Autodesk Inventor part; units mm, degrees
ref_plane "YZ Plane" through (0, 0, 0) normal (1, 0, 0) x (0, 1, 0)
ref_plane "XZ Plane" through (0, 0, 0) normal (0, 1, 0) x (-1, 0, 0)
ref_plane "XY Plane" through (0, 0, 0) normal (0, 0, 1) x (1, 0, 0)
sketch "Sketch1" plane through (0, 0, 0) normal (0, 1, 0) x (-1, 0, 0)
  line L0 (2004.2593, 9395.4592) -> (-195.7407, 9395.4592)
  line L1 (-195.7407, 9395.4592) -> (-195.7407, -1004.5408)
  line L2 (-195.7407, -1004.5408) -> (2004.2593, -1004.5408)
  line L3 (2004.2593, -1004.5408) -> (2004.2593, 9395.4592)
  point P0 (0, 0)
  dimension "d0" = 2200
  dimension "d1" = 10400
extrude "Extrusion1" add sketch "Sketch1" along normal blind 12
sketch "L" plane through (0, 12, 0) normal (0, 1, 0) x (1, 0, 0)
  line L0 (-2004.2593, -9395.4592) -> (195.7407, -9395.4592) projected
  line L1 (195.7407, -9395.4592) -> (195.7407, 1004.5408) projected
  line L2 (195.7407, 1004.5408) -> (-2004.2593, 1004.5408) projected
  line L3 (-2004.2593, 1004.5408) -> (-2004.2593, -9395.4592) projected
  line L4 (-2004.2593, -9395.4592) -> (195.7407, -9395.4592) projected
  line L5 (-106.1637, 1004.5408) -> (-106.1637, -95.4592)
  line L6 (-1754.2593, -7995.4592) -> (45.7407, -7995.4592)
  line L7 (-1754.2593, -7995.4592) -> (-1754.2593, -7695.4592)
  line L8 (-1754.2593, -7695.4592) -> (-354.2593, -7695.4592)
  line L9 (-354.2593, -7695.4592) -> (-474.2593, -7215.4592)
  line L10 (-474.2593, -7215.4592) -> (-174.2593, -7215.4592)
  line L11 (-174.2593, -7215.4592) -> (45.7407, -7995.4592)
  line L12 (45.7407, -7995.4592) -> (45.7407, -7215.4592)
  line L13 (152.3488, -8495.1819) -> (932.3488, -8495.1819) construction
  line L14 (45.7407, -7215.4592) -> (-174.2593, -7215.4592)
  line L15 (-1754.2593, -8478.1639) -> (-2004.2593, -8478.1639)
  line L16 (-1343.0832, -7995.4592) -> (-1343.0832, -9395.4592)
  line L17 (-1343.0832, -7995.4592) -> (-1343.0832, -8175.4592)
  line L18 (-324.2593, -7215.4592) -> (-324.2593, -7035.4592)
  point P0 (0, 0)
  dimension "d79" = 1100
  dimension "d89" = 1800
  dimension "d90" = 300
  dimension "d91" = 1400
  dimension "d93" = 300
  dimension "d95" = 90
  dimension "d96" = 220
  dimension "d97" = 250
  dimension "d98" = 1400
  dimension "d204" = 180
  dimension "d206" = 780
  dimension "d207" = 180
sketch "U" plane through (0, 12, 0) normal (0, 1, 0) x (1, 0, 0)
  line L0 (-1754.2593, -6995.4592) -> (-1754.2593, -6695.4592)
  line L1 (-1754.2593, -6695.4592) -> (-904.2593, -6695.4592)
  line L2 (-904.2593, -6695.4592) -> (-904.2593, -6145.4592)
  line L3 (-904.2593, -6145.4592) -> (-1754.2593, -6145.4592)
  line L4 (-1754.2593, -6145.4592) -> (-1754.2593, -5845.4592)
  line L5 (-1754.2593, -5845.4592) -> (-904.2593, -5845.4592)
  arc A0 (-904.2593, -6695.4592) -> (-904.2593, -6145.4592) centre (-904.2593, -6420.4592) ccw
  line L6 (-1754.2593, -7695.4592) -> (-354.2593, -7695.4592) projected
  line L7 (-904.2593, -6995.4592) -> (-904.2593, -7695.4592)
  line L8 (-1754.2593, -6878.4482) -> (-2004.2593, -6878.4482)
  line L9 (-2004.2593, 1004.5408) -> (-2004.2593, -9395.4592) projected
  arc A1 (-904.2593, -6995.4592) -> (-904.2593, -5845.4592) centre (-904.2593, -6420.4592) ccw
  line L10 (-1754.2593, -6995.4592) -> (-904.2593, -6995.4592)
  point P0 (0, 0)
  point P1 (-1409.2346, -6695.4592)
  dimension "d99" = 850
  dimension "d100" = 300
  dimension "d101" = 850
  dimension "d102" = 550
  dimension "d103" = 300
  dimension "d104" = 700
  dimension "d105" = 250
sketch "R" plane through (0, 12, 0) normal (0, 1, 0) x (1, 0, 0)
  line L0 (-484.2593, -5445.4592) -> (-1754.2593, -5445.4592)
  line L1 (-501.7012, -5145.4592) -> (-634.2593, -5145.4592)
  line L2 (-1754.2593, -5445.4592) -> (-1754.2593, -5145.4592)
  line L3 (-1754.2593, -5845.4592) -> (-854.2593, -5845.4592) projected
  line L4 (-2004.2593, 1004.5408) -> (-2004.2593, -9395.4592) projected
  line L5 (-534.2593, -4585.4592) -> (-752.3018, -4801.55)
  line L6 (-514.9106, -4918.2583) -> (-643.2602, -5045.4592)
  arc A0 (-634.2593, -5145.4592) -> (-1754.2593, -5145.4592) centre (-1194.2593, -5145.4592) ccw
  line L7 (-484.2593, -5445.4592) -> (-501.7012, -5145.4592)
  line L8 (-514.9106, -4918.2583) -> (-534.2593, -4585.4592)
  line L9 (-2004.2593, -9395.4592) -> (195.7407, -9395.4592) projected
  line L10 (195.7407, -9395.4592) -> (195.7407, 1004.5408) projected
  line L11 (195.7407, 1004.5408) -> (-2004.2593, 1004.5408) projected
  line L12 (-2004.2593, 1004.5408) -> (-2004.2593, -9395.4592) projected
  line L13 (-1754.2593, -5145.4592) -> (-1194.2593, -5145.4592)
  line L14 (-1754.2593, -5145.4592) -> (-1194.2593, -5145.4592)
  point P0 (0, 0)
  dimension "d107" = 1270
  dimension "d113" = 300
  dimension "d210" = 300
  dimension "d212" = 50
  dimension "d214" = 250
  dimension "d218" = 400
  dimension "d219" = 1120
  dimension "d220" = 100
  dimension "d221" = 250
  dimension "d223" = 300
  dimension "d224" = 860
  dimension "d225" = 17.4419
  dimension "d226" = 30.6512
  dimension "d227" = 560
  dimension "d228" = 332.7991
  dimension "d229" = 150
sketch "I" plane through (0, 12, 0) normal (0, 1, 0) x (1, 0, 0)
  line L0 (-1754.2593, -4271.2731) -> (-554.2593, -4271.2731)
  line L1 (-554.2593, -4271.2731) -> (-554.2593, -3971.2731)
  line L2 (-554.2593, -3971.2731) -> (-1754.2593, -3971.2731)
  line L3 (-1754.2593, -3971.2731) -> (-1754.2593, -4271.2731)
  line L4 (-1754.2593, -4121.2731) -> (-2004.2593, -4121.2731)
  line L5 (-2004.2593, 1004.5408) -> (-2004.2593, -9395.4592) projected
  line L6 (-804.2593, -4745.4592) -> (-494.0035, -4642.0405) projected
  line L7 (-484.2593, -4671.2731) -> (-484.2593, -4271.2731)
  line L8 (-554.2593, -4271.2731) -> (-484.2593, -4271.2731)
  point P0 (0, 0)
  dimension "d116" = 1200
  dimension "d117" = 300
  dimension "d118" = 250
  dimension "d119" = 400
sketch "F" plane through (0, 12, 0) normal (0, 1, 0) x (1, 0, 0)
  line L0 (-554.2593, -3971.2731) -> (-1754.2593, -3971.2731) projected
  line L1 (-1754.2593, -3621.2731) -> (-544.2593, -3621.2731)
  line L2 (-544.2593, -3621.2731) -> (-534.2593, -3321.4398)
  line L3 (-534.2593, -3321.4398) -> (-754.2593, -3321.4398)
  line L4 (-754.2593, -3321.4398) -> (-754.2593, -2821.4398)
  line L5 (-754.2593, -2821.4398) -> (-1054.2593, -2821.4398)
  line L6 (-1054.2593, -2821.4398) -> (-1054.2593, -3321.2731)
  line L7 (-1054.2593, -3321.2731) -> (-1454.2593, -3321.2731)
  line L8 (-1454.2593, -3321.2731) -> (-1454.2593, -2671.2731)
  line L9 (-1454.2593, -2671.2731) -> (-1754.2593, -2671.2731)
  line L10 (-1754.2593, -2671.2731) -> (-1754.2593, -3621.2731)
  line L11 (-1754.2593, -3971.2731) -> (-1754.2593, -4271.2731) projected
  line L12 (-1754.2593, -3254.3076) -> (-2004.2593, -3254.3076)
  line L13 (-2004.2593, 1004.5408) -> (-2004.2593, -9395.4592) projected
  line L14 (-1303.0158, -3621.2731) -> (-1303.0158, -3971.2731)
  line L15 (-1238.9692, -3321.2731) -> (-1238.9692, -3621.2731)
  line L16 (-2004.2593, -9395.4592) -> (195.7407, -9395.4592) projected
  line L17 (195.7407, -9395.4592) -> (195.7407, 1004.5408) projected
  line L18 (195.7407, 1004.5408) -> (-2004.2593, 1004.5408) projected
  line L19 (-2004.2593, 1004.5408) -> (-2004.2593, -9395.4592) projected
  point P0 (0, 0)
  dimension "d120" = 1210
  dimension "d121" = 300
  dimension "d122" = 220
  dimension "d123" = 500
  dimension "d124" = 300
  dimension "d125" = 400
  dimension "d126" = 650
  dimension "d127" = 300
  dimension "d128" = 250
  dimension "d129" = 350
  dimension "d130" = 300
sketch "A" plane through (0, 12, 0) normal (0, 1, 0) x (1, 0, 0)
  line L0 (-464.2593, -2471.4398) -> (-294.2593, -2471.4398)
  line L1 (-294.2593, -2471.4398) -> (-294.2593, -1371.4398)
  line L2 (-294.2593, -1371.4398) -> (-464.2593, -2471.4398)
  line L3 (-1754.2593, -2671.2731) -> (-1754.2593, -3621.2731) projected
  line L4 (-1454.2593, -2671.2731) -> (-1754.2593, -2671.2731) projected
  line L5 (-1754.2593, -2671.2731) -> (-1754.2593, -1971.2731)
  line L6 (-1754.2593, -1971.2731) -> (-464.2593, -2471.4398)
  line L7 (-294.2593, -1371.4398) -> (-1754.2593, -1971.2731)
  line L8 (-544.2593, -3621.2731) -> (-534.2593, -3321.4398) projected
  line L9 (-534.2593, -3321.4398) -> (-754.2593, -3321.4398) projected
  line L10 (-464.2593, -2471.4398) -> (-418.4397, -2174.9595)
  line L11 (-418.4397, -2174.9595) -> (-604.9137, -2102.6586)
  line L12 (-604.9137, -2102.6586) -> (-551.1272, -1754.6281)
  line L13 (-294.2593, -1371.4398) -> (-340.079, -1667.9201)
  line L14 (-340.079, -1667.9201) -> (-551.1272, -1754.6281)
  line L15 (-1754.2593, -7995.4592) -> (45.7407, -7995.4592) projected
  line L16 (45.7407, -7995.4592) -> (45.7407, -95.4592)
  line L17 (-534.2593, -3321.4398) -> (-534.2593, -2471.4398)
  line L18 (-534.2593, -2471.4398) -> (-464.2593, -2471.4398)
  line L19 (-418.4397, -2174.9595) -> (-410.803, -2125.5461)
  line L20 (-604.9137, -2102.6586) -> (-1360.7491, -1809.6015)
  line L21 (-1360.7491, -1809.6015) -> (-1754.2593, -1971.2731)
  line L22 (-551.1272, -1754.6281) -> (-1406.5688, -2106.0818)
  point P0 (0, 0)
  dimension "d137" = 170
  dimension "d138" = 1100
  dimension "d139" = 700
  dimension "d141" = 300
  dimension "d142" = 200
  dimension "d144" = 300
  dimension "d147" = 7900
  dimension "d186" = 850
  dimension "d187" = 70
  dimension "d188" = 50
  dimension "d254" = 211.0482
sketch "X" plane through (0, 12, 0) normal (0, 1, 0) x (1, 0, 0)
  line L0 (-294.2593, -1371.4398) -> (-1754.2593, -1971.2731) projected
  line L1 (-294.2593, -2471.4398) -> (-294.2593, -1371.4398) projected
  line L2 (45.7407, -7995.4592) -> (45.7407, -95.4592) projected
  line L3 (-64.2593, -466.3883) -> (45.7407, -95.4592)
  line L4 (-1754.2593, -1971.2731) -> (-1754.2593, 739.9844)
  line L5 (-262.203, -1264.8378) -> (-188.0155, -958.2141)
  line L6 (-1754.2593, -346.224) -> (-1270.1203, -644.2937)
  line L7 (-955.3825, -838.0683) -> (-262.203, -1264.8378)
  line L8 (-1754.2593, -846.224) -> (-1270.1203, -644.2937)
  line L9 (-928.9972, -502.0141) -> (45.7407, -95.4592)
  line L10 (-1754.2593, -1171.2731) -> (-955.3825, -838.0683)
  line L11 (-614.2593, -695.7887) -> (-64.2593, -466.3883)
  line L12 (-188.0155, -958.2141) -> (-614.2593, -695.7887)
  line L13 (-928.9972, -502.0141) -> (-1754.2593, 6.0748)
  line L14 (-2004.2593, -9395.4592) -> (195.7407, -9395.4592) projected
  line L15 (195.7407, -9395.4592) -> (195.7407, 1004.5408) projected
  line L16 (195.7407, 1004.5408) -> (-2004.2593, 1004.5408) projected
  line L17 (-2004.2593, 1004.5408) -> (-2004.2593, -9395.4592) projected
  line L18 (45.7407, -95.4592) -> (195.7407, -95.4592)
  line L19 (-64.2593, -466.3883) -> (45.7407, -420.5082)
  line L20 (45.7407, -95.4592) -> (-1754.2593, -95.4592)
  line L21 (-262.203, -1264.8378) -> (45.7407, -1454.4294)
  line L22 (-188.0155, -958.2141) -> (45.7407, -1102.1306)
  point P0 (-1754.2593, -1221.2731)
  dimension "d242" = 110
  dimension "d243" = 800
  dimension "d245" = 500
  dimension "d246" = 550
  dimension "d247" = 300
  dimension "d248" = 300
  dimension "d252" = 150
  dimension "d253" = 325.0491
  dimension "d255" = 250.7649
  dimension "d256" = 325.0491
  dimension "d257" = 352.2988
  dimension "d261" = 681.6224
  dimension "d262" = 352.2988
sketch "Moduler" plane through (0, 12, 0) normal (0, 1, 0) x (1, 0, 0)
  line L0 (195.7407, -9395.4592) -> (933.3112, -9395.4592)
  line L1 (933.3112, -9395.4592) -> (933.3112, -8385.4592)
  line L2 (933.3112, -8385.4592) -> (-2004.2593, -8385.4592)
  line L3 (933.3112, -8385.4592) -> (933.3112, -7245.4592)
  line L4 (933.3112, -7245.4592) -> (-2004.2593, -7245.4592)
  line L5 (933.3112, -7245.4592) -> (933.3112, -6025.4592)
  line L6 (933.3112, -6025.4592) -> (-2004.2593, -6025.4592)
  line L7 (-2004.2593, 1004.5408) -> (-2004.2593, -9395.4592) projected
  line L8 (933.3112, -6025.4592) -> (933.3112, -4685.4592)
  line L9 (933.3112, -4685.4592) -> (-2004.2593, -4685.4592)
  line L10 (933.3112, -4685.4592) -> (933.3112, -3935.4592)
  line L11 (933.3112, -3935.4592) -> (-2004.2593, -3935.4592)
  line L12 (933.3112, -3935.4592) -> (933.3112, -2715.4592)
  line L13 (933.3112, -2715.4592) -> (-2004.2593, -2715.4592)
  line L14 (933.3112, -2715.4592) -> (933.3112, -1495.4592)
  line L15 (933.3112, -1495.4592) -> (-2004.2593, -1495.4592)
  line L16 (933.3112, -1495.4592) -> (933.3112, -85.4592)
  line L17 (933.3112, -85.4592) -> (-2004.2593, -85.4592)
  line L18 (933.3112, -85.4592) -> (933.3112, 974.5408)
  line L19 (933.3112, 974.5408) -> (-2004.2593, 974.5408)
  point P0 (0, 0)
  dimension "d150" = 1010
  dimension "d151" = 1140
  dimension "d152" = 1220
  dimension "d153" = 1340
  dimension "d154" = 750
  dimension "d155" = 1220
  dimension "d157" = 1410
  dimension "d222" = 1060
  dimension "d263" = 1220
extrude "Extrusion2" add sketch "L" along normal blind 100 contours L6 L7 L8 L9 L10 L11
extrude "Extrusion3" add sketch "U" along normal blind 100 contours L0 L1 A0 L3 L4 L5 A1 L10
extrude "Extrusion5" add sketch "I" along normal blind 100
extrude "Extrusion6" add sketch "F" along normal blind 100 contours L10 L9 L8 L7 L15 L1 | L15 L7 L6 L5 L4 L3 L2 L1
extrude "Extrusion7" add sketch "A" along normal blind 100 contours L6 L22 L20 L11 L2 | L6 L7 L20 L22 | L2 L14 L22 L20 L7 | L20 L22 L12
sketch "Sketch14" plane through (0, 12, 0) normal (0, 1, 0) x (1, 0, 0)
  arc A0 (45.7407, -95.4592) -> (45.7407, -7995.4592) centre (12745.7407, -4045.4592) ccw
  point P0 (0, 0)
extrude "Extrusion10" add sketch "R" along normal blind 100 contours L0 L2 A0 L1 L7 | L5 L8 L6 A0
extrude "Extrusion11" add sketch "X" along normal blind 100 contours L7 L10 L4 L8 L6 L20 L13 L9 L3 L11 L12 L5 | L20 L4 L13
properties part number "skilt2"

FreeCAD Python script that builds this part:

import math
import FreeCAD as App
import Part
import Sketcher
Q = App.Units.Quantity

doc = App.newDocument("Part")
params = doc.addObject("Spreadsheet::Sheet", "Params")
for row, (alias, value) in enumerate([
    ("sketch1_width", "2200 mm"),
    ("sketch1_height", "10400 mm"),
    ("pad1_length", "12 mm"),
    ("sketch2_width", "1800 mm"),
    ("sketch2_width2", "300 mm"),
    ("sketch2_width3", "1400 mm"),
    ("pad2_length", "100 mm"),
    ("sketch3_radius", "275 mm"),
    ("sketch3_width", "850 mm"),
    ("sketch3_height", "300 mm"),
    ("pad3_length", "100 mm"),
    ("sketch4_width", "1200 mm"),
    ("sketch4_height", "300 mm"),
    ("pad4_length", "100 mm"),
    ("sketch5_width", "1210 mm"),
    ("sketch5_width2", "220 mm"),
    ("sketch5_width3", "300 mm"),
    ("sketch5_width4", "400 mm"),
    ("sketch5_height", "500 mm"),
    ("pad5_length", "100 mm"),
    ("sketch6_length", "300 mm"),
    ("sketch6_length2", "200 mm"),
    ("pad6_length", "100 mm"),
    ("sketch7_radius", "560 mm"),
    ("sketch7_width", "1270 mm"),
    ("sketch7_height", "300 mm"),
    ("pad7_length", "100 mm"),
    ("pad8_length", "100 mm"),
], start=1):
    params.set(f"A{row}", alias)
    params.set(f"B{row}", "=" + value)
    params.setAlias(f"B{row}", alias)

body = doc.addObject("PartDesign::Body", "Body")

# Sketch on XZ plane
sketch1 = body.newObject("Sketcher::SketchObject", "Sketch")
sketch1.AttachmentSupport = (doc.getObject("XZ_Plane"), [""])
sketch1.MapMode = "FlatFace"
sketch1.addGeometry(Part.LineSegment(App.Vector(-2004, -1005, 0), App.Vector(-2004, 9395, 0)), False)
sketch1.addGeometry(Part.LineSegment(App.Vector(-2004, 9395, 0), App.Vector(196, 9395, 0)), False)
sketch1.addGeometry(Part.LineSegment(App.Vector(196, 9395, 0), App.Vector(196, -1005, 0)), False)
sketch1.addGeometry(Part.LineSegment(App.Vector(196, -1005, 0), App.Vector(-2004, -1005, 0)), False)
sketch1.addConstraint(Sketcher.Constraint("Coincident", 0, 2, 1, 1))
sketch1.addConstraint(Sketcher.Constraint("Coincident", 1, 2, 2, 1))
sketch1.addConstraint(Sketcher.Constraint("Coincident", 2, 2, 3, 1))
sketch1.addConstraint(Sketcher.Constraint("Coincident", 3, 2, 0, 1))
sketch1.addConstraint(Sketcher.Constraint("Vertical", 0))
sketch1.addConstraint(Sketcher.Constraint("Horizontal", 1))
sketch1.addConstraint(Sketcher.Constraint("Vertical", 2))
sketch1.addConstraint(Sketcher.Constraint("Horizontal", 3))
sketch1.addConstraint(Sketcher.Constraint("DistanceX", 1, 1, 1, 2, Q("2200 mm")))
sketch1.addConstraint(Sketcher.Constraint("DistanceY", 0, 1, 0, 2, Q("10400 mm")))
sketch1.addConstraint(Sketcher.Constraint("DistanceX", 0, 2, -1, 1, Q("2004.2593 mm")))
sketch1.addConstraint(Sketcher.Constraint("DistanceY", -1, 1, 0, 2, Q("9395.4592 mm")))
sketch1.setExpression("Constraints[8]", "Params.sketch1_width")
sketch1.setExpression("Constraints[9]", "Params.sketch1_height")
pad1 = body.newObject("PartDesign::Pad", "Pad")
pad1.Profile = sketch1
pad1.setExpression("Length", "Params.pad1_length")
pad1.Reversed = True

# Sketch on XZ plane
sketch2 = body.newObject("Sketcher::SketchObject", "Sketch001")
sketch2.AttachmentSupport = (doc.getObject("XZ_Plane"), [""])
sketch2.MapMode = "FlatFace"
sketch2.AttachmentOffset = App.Placement(App.Vector(0, 0, -12), App.Rotation())
sketch2.addGeometry(Part.LineSegment(App.Vector(-1754, 7995, 0), App.Vector(46, 7995, 0)), False)
sketch2.addGeometry(Part.LineSegment(App.Vector(46, 7995, 0), App.Vector(-174, 7215, 0)), False)
sketch2.addGeometry(Part.LineSegment(App.Vector(-174, 7215, 0), App.Vector(-474, 7215, 0)), False)
sketch2.addGeometry(Part.LineSegment(App.Vector(-474, 7215, 0), App.Vector(-354, 7695, 0)), False)
sketch2.addGeometry(Part.LineSegment(App.Vector(-354, 7695, 0), App.Vector(-1754, 7695, 0)), False)
sketch2.addGeometry(Part.LineSegment(App.Vector(-1754, 7695, 0), App.Vector(-1754, 7995, 0)), False)
sketch2.addConstraint(Sketcher.Constraint("Coincident", 0, 2, 1, 1))
sketch2.addConstraint(Sketcher.Constraint("Coincident", 1, 2, 2, 1))
sketch2.addConstraint(Sketcher.Constraint("Coincident", 2, 2, 3, 1))
sketch2.addConstraint(Sketcher.Constraint("Coincident", 3, 2, 4, 1))
sketch2.addConstraint(Sketcher.Constraint("Coincident", 4, 2, 5, 1))
sketch2.addConstraint(Sketcher.Constraint("Coincident", 5, 2, 0, 1))
sketch2.addConstraint(Sketcher.Constraint("Horizontal", 0))
sketch2.addConstraint(Sketcher.Constraint("Horizontal", 2))
sketch2.addConstraint(Sketcher.Constraint("Horizontal", 4))
sketch2.addConstraint(Sketcher.Constraint("Vertical", 5))
sketch2.addConstraint(Sketcher.Constraint("Equal", 2, 5))
sketch2.addConstraint(Sketcher.Constraint("DistanceX", 0, 1, 0, 2, Q("1800 mm")))
sketch2.addConstraint(Sketcher.Constraint("DistanceX", 2, 2, 2, 1, Q("300 mm")))
sketch2.addConstraint(Sketcher.Constraint("DistanceX", 4, 2, 4, 1, Q("1400 mm")))
sketch2.addConstraint(Sketcher.Constraint("DistanceX", 1, 2, 0, 2, Q("220 mm")))
sketch2.addConstraint(Sketcher.Constraint("DistanceY", 1, 2, 0, 2, Q("780 mm")))
sketch2.addConstraint(Sketcher.Constraint("DistanceX", -1, 1, 0, 2, Q("45.7407 mm")))
sketch2.addConstraint(Sketcher.Constraint("DistanceY", -1, 1, 0, 2, Q("7995.4592 mm")))
sketch2.setExpression("Constraints[11]", "Params.sketch2_width")
sketch2.setExpression("Constraints[12]", "Params.sketch2_width2")
sketch2.setExpression("Constraints[13]", "Params.sketch2_width3")
pad2 = body.newObject("PartDesign::Pad", "Pad001")
pad2.Profile = sketch2
pad2.setExpression("Length", "Params.pad2_length")
pad2.Reversed = True

# Sketch on XZ plane
sketch3 = body.newObject("Sketcher::SketchObject", "Sketch002")
sketch3.AttachmentSupport = (doc.getObject("XZ_Plane"), [""])
sketch3.MapMode = "FlatFace"
sketch3.AttachmentOffset = App.Placement(App.Vector(0, 0, -12), App.Rotation())
sketch3.addGeometry(Part.LineSegment(App.Vector(-1754, 6695, 0), App.Vector(-1754, 6995, 0)), False)
sketch3.addGeometry(Part.LineSegment(App.Vector(-1754, 6995, 0), App.Vector(-904, 6995, 0)), False)
sketch3.addGeometry(Part.ArcOfCircle(Part.Circle(App.Vector(-904, 6420, 0), App.Vector(0, 0, 1), 575), math.radians(-90), math.radians(90)), False)
sketch3.addGeometry(Part.LineSegment(App.Vector(-904, 5845, 0), App.Vector(-1754, 5845, 0)), False)
sketch3.addGeometry(Part.LineSegment(App.Vector(-1754, 5845, 0), App.Vector(-1754, 6145, 0)), False)
sketch3.addGeometry(Part.LineSegment(App.Vector(-1754, 6145, 0), App.Vector(-904, 6145, 0)), False)
sketch3.addGeometry(Part.ArcOfCircle(Part.Circle(App.Vector(-904, 6420, 0), App.Vector(0, 0, 1), 275), math.radians(-90), math.radians(90)), False)
sketch3.addGeometry(Part.LineSegment(App.Vector(-904, 6695, 0), App.Vector(-1754, 6695, 0)), False)
sketch3.addConstraint(Sketcher.Constraint("Coincident", 0, 2, 1, 1))
sketch3.addConstraint(Sketcher.Constraint("Tangent", 1, 2, 2, 2))
sketch3.addConstraint(Sketcher.Constraint("Tangent", 2, 1, 3, 1))
sketch3.addConstraint(Sketcher.Constraint("Coincident", 3, 2, 4, 1))
sketch3.addConstraint(Sketcher.Constraint("Coincident", 4, 2, 5, 1))
sketch3.addConstraint(Sketcher.Constraint("Tangent", 5, 2, 6, 1))
sketch3.addConstraint(Sketcher.Constraint("Tangent", 6, 2, 7, 1))
sketch3.addConstraint(Sketcher.Constraint("Coincident", 7, 2, 0, 1))
sketch3.addConstraint(Sketcher.Constraint("Vertical", 0))
sketch3.addConstraint(Sketcher.Constraint("Horizontal", 1))
sketch3.addConstraint(Sketcher.Constraint("Horizontal", 3))
sketch3.addConstraint(Sketcher.Constraint("Vertical", 4))
sketch3.addConstraint(Sketcher.Constraint("Horizontal", 5))
sketch3.addConstraint(Sketcher.Constraint("Horizontal", 7))
sketch3.addConstraint(Sketcher.Constraint("Coincident", 6, 3, 2, 3))
sketch3.addConstraint(Sketcher.Constraint("Vertical", 0, 2, 3, 2))
sketch3.addConstraint(Sketcher.Constraint("Radius", 6, Q("275 mm")))
sketch3.addConstraint(Sketcher.Constraint("DistanceX", 1, 1, 1, 2, Q("850 mm")))
sketch3.addConstraint(Sketcher.Constraint("DistanceY", 0, 1, 0, 2, Q("300 mm")))
sketch3.addConstraint(Sketcher.Constraint("DistanceX", 2, 3, -1, 1, Q("904.2593 mm")))
sketch3.addConstraint(Sketcher.Constraint("DistanceY", -1, 1, 2, 3, Q("6420.4592 mm")))
sketch3.setExpression("Constraints[16]", "Params.sketch3_radius")
sketch3.setExpression("Constraints[17]", "Params.sketch3_width")
sketch3.setExpression("Constraints[18]", "Params.sketch3_height")
pad3 = body.newObject("PartDesign::Pad", "Pad002")
pad3.Profile = sketch3
pad3.setExpression("Length", "Params.pad3_length")
pad3.Reversed = True

# Sketch on XZ plane
sketch4 = body.newObject("Sketcher::SketchObject", "Sketch003")
sketch4.AttachmentSupport = (doc.getObject("XZ_Plane"), [""])
sketch4.MapMode = "FlatFace"
sketch4.AttachmentOffset = App.Placement(App.Vector(0, 0, -12), App.Rotation())
sketch4.addGeometry(Part.LineSegment(App.Vector(-1754, 3971, 0), App.Vector(-1754, 4271, 0)), False)
sketch4.addGeometry(Part.LineSegment(App.Vector(-1754, 4271, 0), App.Vector(-554, 4271, 0)), False)
sketch4.addGeometry(Part.LineSegment(App.Vector(-554, 4271, 0), App.Vector(-554, 3971, 0)), False)
sketch4.addGeometry(Part.LineSegment(App.Vector(-554, 3971, 0), App.Vector(-1754, 3971, 0)), False)
sketch4.addConstraint(Sketcher.Constraint("Coincident", 0, 2, 1, 1))
sketch4.addConstraint(Sketcher.Constraint("Coincident", 1, 2, 2, 1))
sketch4.addConstraint(Sketcher.Constraint("Coincident", 2, 2, 3, 1))
sketch4.addConstraint(Sketcher.Constraint("Coincident", 3, 2, 0, 1))
sketch4.addConstraint(Sketcher.Constraint("Vertical", 0))
sketch4.addConstraint(Sketcher.Constraint("Horizontal", 1))
sketch4.addConstraint(Sketcher.Constraint("Vertical", 2))
sketch4.addConstraint(Sketcher.Constraint("Horizontal", 3))
sketch4.addConstraint(Sketcher.Constraint("DistanceX", 1, 1, 1, 2, Q("1200 mm")))
sketch4.addConstraint(Sketcher.Constraint("DistanceY", 0, 1, 0, 2, Q("300 mm")))
sketch4.addConstraint(Sketcher.Constraint("DistanceY", -1, 1, 0, 2, Q("4271.273 mm")))
sketch4.addConstraint(Sketcher.Constraint("DistanceX", 0, 2, -1, 1, Q("1754.2593 mm")))
sketch4.setExpression("Constraints[8]", "Params.sketch4_width")
sketch4.setExpression("Constraints[9]", "Params.sketch4_height")
pad4 = body.newObject("PartDesign::Pad", "Pad003")
pad4.Profile = sketch4
pad4.setExpression("Length", "Params.pad4_length")
pad4.Reversed = True

# Sketch on XZ plane
sketch5 = body.newObject("Sketcher::SketchObject", "Sketch004")
sketch5.AttachmentSupport = (doc.getObject("XZ_Plane"), [""])
sketch5.MapMode = "FlatFace"
sketch5.AttachmentOffset = App.Placement(App.Vector(0, 0, -12), App.Rotation())
sketch5.addGeometry(Part.LineSegment(App.Vector(-1754, 3621, 0), App.Vector(-544, 3621, 0)), False)
sketch5.addGeometry(Part.LineSegment(App.Vector(-544, 3621, 0), App.Vector(-534, 3321, 0)), False)
sketch5.addGeometry(Part.LineSegment(App.Vector(-534, 3321, 0), App.Vector(-754, 3321, 0)), False)
sketch5.addGeometry(Part.LineSegment(App.Vector(-754, 3321, 0), App.Vector(-754, 2821, 0)), False)
sketch5.addGeometry(Part.LineSegment(App.Vector(-754, 2821, 0), App.Vector(-1054, 2821, 0)), False)
sketch5.addGeometry(Part.LineSegment(App.Vector(-1054, 2821, 0), App.Vector(-1054, 3321, 0)), False)
sketch5.addGeometry(Part.LineSegment(App.Vector(-1054, 3321, 0), App.Vector(-1454, 3321, 0)), False)
sketch5.addGeometry(Part.LineSegment(App.Vector(-1454, 3321, 0), App.Vector(-1454, 2671, 0)), False)
sketch5.addGeometry(Part.LineSegment(App.Vector(-1454, 2671, 0), App.Vector(-1754, 2671, 0)), False)
sketch5.addGeometry(Part.LineSegment(App.Vector(-1754, 2671, 0), App.Vector(-1754, 3621, 0)), False)
sketch5.addConstraint(Sketcher.Constraint("Coincident", 0, 2, 1, 1))
sketch5.addConstraint(Sketcher.Constraint("Coincident", 1, 2, 2, 1))
sketch5.addConstraint(Sketcher.Constraint("Coincident", 2, 2, 3, 1))
sketch5.addConstraint(Sketcher.Constraint("Coincident", 3, 2, 4, 1))
sketch5.addConstraint(Sketcher.Constraint("Coincident", 4, 2, 5, 1))
sketch5.addConstraint(Sketcher.Constraint("Coincident", 5, 2, 6, 1))
sketch5.addConstraint(Sketcher.Constraint("Coincident", 6, 2, 7, 1))
sketch5.addConstraint(Sketcher.Constraint("Coincident", 7, 2, 8, 1))
sketch5.addConstraint(Sketcher.Constraint("Coincident", 8, 2, 9, 1))
sketch5.addConstraint(Sketcher.Constraint("Coincident", 9, 2, 0, 1))
sketch5.addConstraint(Sketcher.Constraint("Horizontal", 0))
sketch5.addConstraint(Sketcher.Constraint("Horizontal", 2))
sketch5.addConstraint(Sketcher.Constraint("Vertical", 3))
sketch5.addConstraint(Sketcher.Constraint("Horizontal", 4))
sketch5.addConstraint(Sketcher.Constraint("Vertical", 5))
sketch5.addConstraint(Sketcher.Constraint("Horizontal", 6))
sketch5.addConstraint(Sketcher.Constraint("Vertical", 7))
sketch5.addConstraint(Sketcher.Constraint("Horizontal", 8))
sketch5.addConstraint(Sketcher.Constraint("Vertical", 9))
sketch5.addConstraint(Sketcher.Constraint("Equal", 4, 8))
sketch5.addConstraint(Sketcher.Constraint("DistanceX", 0, 1, 0, 2, Q("1210 mm")))
sketch5.addConstraint(Sketcher.Constraint("DistanceX", 2, 2, 2, 1, Q("220 mm")))
sketch5.addConstraint(Sketcher.Constraint("DistanceX", 4, 2, 4, 1, Q("300 mm")))
sketch5.addConstraint(Sketcher.Constraint("DistanceX", 6, 2, 6, 1, Q("400 mm")))
sketch5.addConstraint(Sketcher.Constraint("DistanceY", 3, 2, 3, 1, Q("500 mm")))
sketch5.addConstraint(Sketcher.Constraint("DistanceY", 7, 2, 7, 1, Q("650 mm")))
sketch5.addConstraint(Sketcher.Constraint("Distance", 1, Q("300 mm")))
sketch5.addConstraint(Sketcher.Constraint("DistanceY", 5, 2, 0, 2, Q("300 mm")))
sketch5.addConstraint(Sketcher.Constraint("DistanceY", -1, 1, 0, 2, Q("3621.273 mm")))
sketch5.addConstraint(Sketcher.Constraint("DistanceX", 0, 2, -1, 1, Q("544.2593 mm")))
sketch5.setExpression("Constraints[20]", "Params.sketch5_width")
sketch5.setExpression("Constraints[21]", "Params.sketch5_width2")
sketch5.setExpression("Constraints[22]", "Params.sketch5_width3")
sketch5.setExpression("Constraints[23]", "Params.sketch5_width4")
sketch5.setExpression("Constraints[24]", "Params.sketch5_height")
pad5 = body.newObject("PartDesign::Pad", "Pad004")
pad5.Profile = sketch5
pad5.setExpression("Length", "Params.pad5_length")
pad5.Reversed = True

# Sketch on XZ plane
sketch6 = body.newObject("Sketcher::SketchObject", "Sketch005")
sketch6.AttachmentSupport = (doc.getObject("XZ_Plane"), [""])
sketch6.MapMode = "FlatFace"
sketch6.AttachmentOffset = App.Placement(App.Vector(0, 0, -12), App.Rotation())
sketch6.addGeometry(Part.LineSegment(App.Vector(-464, 2471, 0), App.Vector(-418, 2175, 0)), False)
sketch6.addGeometry(Part.LineSegment(App.Vector(-418, 2175, 0), App.Vector(-605, 2103, 0)), False)
sketch6.addGeometry(Part.LineSegment(App.Vector(-605, 2103, 0), App.Vector(-551, 1755, 0)), False)
sketch6.addGeometry(Part.LineSegment(App.Vector(-551, 1755, 0), App.Vector(-340, 1668, 0)), False)
sketch6.addGeometry(Part.LineSegment(App.Vector(-340, 1668, 0), App.Vector(-294, 1371, 0)), False)
sketch6.addGeometry(Part.LineSegment(App.Vector(-294, 1371, 0), App.Vector(-1754, 1971, 0)), False)
sketch6.addGeometry(Part.LineSegment(App.Vector(-1754, 1971, 0), App.Vector(-464, 2471, 0)), False)
sketch6.addConstraint(Sketcher.Constraint("Coincident", 0, 2, 1, 1))
sketch6.addConstraint(Sketcher.Constraint("Coincident", 1, 2, 2, 1))
sketch6.addConstraint(Sketcher.Constraint("Coincident", 2, 2, 3, 1))
sketch6.addConstraint(Sketcher.Constraint("Coincident", 3, 2, 4, 1))
sketch6.addConstraint(Sketcher.Constraint("Coincident", 4, 2, 5, 1))
sketch6.addConstraint(Sketcher.Constraint("Coincident", 5, 2, 6, 1))
sketch6.addConstraint(Sketcher.Constraint("Coincident", 6, 2, 0, 1))
sketch6.addConstraint(Sketcher.Constraint("Parallel", 0, 2))
sketch6.addConstraint(Sketcher.Constraint("Parallel", 2, 4))
sketch6.addConstraint(Sketcher.Constraint("Parallel", 3, 5))
sketch6.addConstraint(Sketcher.Constraint("Parallel", 1, 6))
sketch6.addConstraint(Sketcher.Constraint("Equal", 0, 4))
sketch6.addConstraint(Sketcher.Constraint("Distance", 0, Q("300 mm")))
sketch6.addConstraint(Sketcher.Constraint("Distance", 1, Q("200 mm")))
sketch6.addConstraint(Sketcher.Constraint("DistanceX", 6, 2, 4, 2, Q("170 mm")))
sketch6.addConstraint(Sketcher.Constraint("DistanceY", 4, 2, 6, 2, Q("1100 mm")))
sketch6.addConstraint(Sketcher.Constraint("DistanceX", 5, 2, 4, 2, Q("1460 mm")))
sketch6.addConstraint(Sketcher.Constraint("DistanceX", 2, 2, 3, 2, Q("211.0482 mm")))
sketch6.addConstraint(Sketcher.Constraint("DistanceY", -1, 1, 3, 2, Q("1667.92 mm")))
sketch6.addConstraint(Sketcher.Constraint("Distance", 5, Q("1578.417 mm")))
sketch6.addConstraint(Sketcher.Constraint("DistanceX", 3, 2, -1, 1, Q("340.079 mm")))
sketch6.setExpression("Constraints[12]", "Params.sketch6_length")
sketch6.setExpression("Constraints[13]", "Params.sketch6_length2")
pad6 = body.newObject("PartDesign::Pad", "Pad005")
pad6.Profile = sketch6
pad6.setExpression("Length", "Params.pad6_length")
pad6.Reversed = True

# Sketch on XZ plane
sketch7 = body.newObject("Sketcher::SketchObject", "Sketch006")
sketch7.AttachmentSupport = (doc.getObject("XZ_Plane"), [""])
sketch7.MapMode = "FlatFace"
sketch7.AttachmentOffset = App.Placement(App.Vector(0, 0, -12), App.Rotation())
sketch7.addGeometry(Part.LineSegment(App.Vector(-1754, 5445, 0), App.Vector(-484, 5445, 0)), False)
sketch7.addGeometry(Part.LineSegment(App.Vector(-484, 5445, 0), App.Vector(-502, 5145, 0)), False)
sketch7.addGeometry(Part.LineSegment(App.Vector(-502, 5145, 0), App.Vector(-634, 5145, 0)), False)
sketch7.addGeometry(Part.ArcOfCircle(Part.Circle(App.Vector(-1194, 5145, 0), App.Vector(0, 0, 1), 560), math.radians(-10.29), math.radians(0)), False)
sketch7.addGeometry(Part.LineSegment(App.Vector(-643, 5045, 0), App.Vector(-515, 4918, 0)), False)
sketch7.addGeometry(Part.LineSegment(App.Vector(-515, 4918, 0), App.Vector(-534, 4585, 0)), False)
sketch7.addGeometry(Part.LineSegment(App.Vector(-534, 4585, 0), App.Vector(-752, 4802, 0)), False)
sketch7.addGeometry(Part.ArcOfCircle(Part.Circle(App.Vector(-1194, 5145, 0), App.Vector(0, 0, 1), 560), math.radians(180), math.radians(322)), False)
sketch7.addGeometry(Part.LineSegment(App.Vector(-1754, 5145, 0), App.Vector(-1754, 5445, 0)), False)
sketch7.addConstraint(Sketcher.Constraint("Coincident", 0, 2, 1, 1))
sketch7.addConstraint(Sketcher.Constraint("Coincident", 1, 2, 2, 1))
sketch7.addConstraint(Sketcher.Constraint("Coincident", 2, 2, 3, 2))
sketch7.addConstraint(Sketcher.Constraint("Coincident", 3, 1, 4, 1))
sketch7.addConstraint(Sketcher.Constraint("Coincident", 4, 2, 5, 1))
sketch7.addConstraint(Sketcher.Constraint("Coincident", 5, 2, 6, 1))
sketch7.addConstraint(Sketcher.Constraint("Coincident", 6, 2, 7, 2))
sketch7.addConstraint(Sketcher.Constraint("Tangent", 7, 1, 8, 1))
sketch7.addConstraint(Sketcher.Constraint("Coincident", 8, 2, 0, 1))
sketch7.addConstraint(Sketcher.Constraint("Horizontal", 0))
sketch7.addConstraint(Sketcher.Constraint("Horizontal", 2))
sketch7.addConstraint(Sketcher.Constraint("Vertical", 8))
sketch7.addConstraint(Sketcher.Constraint("Coincident", 7, 3, 3, 3))
sketch7.addConstraint(Sketcher.Constraint("Equal", 3, 7))
sketch7.addConstraint(Sketcher.Constraint("Parallel", 1, 5))
sketch7.addConstraint(Sketcher.Constraint("Parallel", 4, 6))
sketch7.addConstraint(Sketcher.Constraint("Horizontal", 7, 3, 1, 2))
sketch7.addConstraint(Sketcher.Constraint("Radius", 3, Q("560 mm")))
sketch7.addConstraint(Sketcher.Constraint("DistanceX", 0, 1, 0, 2, Q("1270 mm")))
sketch7.addConstraint(Sketcher.Constraint("DistanceY", 8, 1, 8, 2, Q("300 mm")))
sketch7.addConstraint(Sketcher.Constraint("DistanceY", 5, 2, 1, 2, Q("560 mm")))
sketch7.addConstraint(Sketcher.Constraint("DistanceX", 2, 2, 5, 2, Q("100 mm")))
sketch7.addConstraint(Sketcher.Constraint("DistanceX", 1, 2, 0, 2, Q("17.442 mm")))
sketch7.addConstraint(Sketcher.Constraint("DistanceY", 5, 2, 4, 2, Q("332.799 mm")))
sketch7.addConstraint(Sketcher.Constraint("DistanceY", -1, 1, 6, 2, Q("4801.55 mm")))
sketch7.addConstraint(Sketcher.Constraint("Distance", 4, Q("180.7033 mm")))
sketch7.addConstraint(Sketcher.Constraint("DistanceX", 3, 3, -1, 1, Q("1194.2593 mm")))
sketch7.setExpression("Constraints[17]", "Params.sketch7_radius")
sketch7.setExpression("Constraints[18]", "Params.sketch7_width")
sketch7.setExpression("Constraints[19]", "Params.sketch7_height")
pad7 = body.newObject("PartDesign::Pad", "Pad006")
pad7.Profile = sketch7
pad7.setExpression("Length", "Params.pad7_length")
pad7.Reversed = True

# Sketch on XZ plane
sketch8 = body.newObject("Sketcher::SketchObject", "Sketch007")
sketch8.AttachmentSupport = (doc.getObject("XZ_Plane"), [""])
sketch8.MapMode = "FlatFace"
sketch8.AttachmentOffset = App.Placement(App.Vector(0, 0, -12), App.Rotation())
sketch8.addGeometry(Part.LineSegment(App.Vector(-955, 838, 0), App.Vector(-262, 1265, 0)), False)
sketch8.addGeometry(Part.LineSegment(App.Vector(-262, 1265, 0), App.Vector(-188, 958, 0)), False)
sketch8.addGeometry(Part.LineSegment(App.Vector(-188, 958, 0), App.Vector(-614, 696, 0)), False)
sketch8.addGeometry(Part.LineSegment(App.Vector(-614, 696, 0), App.Vector(-64, 466, 0)), False)
sketch8.addGeometry(Part.LineSegment(App.Vector(-64, 466, 0), App.Vector(46, 95, 0)), False)
sketch8.addGeometry(Part.LineSegment(App.Vector(46, 95, 0), App.Vector(-929, 502, 0)), False)
sketch8.addGeometry(Part.LineSegment(App.Vector(-929, 502, 0), App.Vector(-1754, -6, 0)), False)
sketch8.addGeometry(Part.LineSegment(App.Vector(-1754, -6, 0), App.Vector(-1754, 346, 0)), False)
sketch8.addGeometry(Part.LineSegment(App.Vector(-1754, 346, 0), App.Vector(-1270, 644, 0)), False)
sketch8.addGeometry(Part.LineSegment(App.Vector(-1270, 644, 0), App.Vector(-1754, 846, 0)), False)
sketch8.addGeometry(Part.LineSegment(App.Vector(-1754, 846, 0), App.Vector(-1754, 1171, 0)), False)
sketch8.addGeometry(Part.LineSegment(App.Vector(-1754, 1171, 0), App.Vector(-955, 838, 0)), False)
sketch8.addConstraint(Sketcher.Constraint("Coincident", 0, 2, 1, 1))
sketch8.addConstraint(Sketcher.Constraint("Coincident", 1, 2, 2, 1))
sketch8.addConstraint(Sketcher.Constraint("Coincident", 2, 2, 3, 1))
sketch8.addConstraint(Sketcher.Constraint("Coincident", 3, 2, 4, 1))
sketch8.addConstraint(Sketcher.Constraint("Coincident", 4, 2, 5, 1))
sketch8.addConstraint(Sketcher.Constraint("Coincident", 5, 2, 6, 1))
sketch8.addConstraint(Sketcher.Constraint("Coincident", 6, 2, 7, 1))
sketch8.addConstraint(Sketcher.Constraint("Coincident", 7, 2, 8, 1))
sketch8.addConstraint(Sketcher.Constraint("Coincident", 8, 2, 9, 1))
sketch8.addConstraint(Sketcher.Constraint("Coincident", 9, 2, 10, 1))
sketch8.addConstraint(Sketcher.Constraint("Coincident", 10, 2, 11, 1))
sketch8.addConstraint(Sketcher.Constraint("Coincident", 11, 2, 0, 1))
sketch8.addConstraint(Sketcher.Constraint("Vertical", 7))
sketch8.addConstraint(Sketcher.Constraint("Vertical", 10))
sketch8.addConstraint(Sketcher.Constraint("Parallel", 0, 2))
sketch8.addConstraint(Sketcher.Constraint("Parallel", 3, 5))
sketch8.addConstraint(Sketcher.Constraint("Parallel", 2, 6))
sketch8.addConstraint(Sketcher.Constraint("Parallel", 6, 8))
sketch8.addConstraint(Sketcher.Constraint("Parallel", 5, 9))
sketch8.addConstraint(Sketcher.Constraint("Parallel", 9, 11))
sketch8.addConstraint(Sketcher.Constraint("Vertical", 7, 2, 9, 2))
sketch8.addConstraint(Sketcher.Constraint("DistanceX", 2, 2, 3, 2, Q("550 mm")))
sketch8.addConstraint(Sketcher.Constraint("DistanceX", 3, 2, 4, 2, Q("110 mm")))
sketch8.addConstraint(Sketcher.Constraint("DistanceY", 7, 2, 9, 2, Q("500 mm")))
sketch8.addConstraint(Sketcher.Constraint("DistanceY", 10, 1, 10, 2, Q("325.049 mm")))
sketch8.addConstraint(Sketcher.Constraint("DistanceY", 7, 1, 7, 2, Q("352.2988 mm")))
sketch8.addConstraint(Sketcher.Constraint("DistanceX", 6, 2, 2, 2, Q("1140 mm")))
sketch8.addConstraint(Sketcher.Constraint("Angle", 0, Q("31.6193 deg")))
sketch8.addConstraint(Sketcher.Constraint("Angle", 3, Q("-22.6406 deg")))
sketch8.addConstraint(Sketcher.Constraint("DistanceY", 5, 2, 1, 2, Q("456.2 mm")))
sketch8.addConstraint(Sketcher.Constraint("DistanceY", 7, 2, 5, 2, Q("155.79 mm")))
sketch8.addConstraint(Sketcher.Constraint("Distance", 0, Q("814.021 mm")))
sketch8.addConstraint(Sketcher.Constraint("Distance", 1, Q("315.471 mm")))
sketch8.addConstraint(Sketcher.Constraint("DistanceX", 0, 2, -1, 1, Q("262.203 mm")))
sketch8.addConstraint(Sketcher.Constraint("DistanceY", -1, 1, 1, 2, Q("958.214 mm")))
sketch8.addConstraint(Sketcher.Constraint("DistanceY", 2, 2, 0, 2, Q("569.049 mm")))
pad8 = body.newObject("PartDesign::Pad", "Pad007")
pad8.Profile = sketch8
pad8.setExpression("Length", "Params.pad8_length")
pad8.Reversed = True

doc.recompute()
